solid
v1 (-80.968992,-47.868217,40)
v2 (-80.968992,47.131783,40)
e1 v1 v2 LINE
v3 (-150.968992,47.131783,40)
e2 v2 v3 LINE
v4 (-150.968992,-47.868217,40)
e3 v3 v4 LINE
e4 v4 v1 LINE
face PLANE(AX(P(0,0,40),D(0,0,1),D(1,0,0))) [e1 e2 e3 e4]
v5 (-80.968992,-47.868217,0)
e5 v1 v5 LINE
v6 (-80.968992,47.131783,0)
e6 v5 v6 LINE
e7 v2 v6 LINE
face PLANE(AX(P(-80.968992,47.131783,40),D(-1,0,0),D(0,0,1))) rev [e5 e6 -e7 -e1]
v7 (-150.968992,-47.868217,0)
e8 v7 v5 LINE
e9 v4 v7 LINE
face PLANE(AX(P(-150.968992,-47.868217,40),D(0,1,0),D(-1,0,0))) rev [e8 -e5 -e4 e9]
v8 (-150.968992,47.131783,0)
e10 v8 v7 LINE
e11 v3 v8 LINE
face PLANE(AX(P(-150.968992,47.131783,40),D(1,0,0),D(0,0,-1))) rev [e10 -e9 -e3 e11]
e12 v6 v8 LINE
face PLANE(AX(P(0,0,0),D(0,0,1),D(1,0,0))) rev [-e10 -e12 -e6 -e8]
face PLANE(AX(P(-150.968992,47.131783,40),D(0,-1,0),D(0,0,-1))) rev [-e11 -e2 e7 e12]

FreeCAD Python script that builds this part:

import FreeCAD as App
import Part
import Sketcher
from FreeCAD import Vector
Q = App.Units.Quantity


def add_polygon(sketch, points):
    """Adds a closed chain of lines whose ends are joined by coincident constraints."""
    first, n = sketch.GeometryCount, len(points)
    for a, b in zip(points, points[1:] + points[:1]):
        sketch.addGeometry(Part.LineSegment(App.Vector(*a, 0), App.Vector(*b, 0)), False)
    for i in range(n):
        sketch.addConstraint(Sketcher.Constraint("Coincident", first + i, 2, first + (i + 1) % n, 1))

doc = App.newDocument("Part")
body = doc.addObject("PartDesign::Body", "Body")

# Sketch on XY plane
sketch1 = body.newObject("Sketcher::SketchObject", "Sketch")
sketch1.AttachmentSupport = (doc.getObject("XY_Plane"), [""])
sketch1.MapMode = "FlatFace"
add_polygon(sketch1, [(-151, 47), (-151, -48), (-81, -48), (-81, 47)])  # lines 0-3
sketch1.addConstraint([
    Sketcher.Constraint("Vertical", 0),
    Sketcher.Constraint("Horizontal", 1),
    Sketcher.Constraint("Vertical", 2),
    Sketcher.Constraint("Horizontal", 3),
    Sketcher.Constraint("DistanceX", 1, 1, 1, 2, Q("70 mm")),
    Sketcher.Constraint("DistanceY", 0, 2, 0, 1, Q("95 mm")),
    Sketcher.Constraint("DistanceX", 0, 2, -1, 1, Q("150.968992 mm")),
    Sketcher.Constraint("DistanceY", 0, 2, -1, 1, Q("47.868217 mm")),
])
pad1 = body.newObject("PartDesign::Pad", "Pad")
pad1.Profile = sketch1
pad1.Length = 40

doc.recompute()
